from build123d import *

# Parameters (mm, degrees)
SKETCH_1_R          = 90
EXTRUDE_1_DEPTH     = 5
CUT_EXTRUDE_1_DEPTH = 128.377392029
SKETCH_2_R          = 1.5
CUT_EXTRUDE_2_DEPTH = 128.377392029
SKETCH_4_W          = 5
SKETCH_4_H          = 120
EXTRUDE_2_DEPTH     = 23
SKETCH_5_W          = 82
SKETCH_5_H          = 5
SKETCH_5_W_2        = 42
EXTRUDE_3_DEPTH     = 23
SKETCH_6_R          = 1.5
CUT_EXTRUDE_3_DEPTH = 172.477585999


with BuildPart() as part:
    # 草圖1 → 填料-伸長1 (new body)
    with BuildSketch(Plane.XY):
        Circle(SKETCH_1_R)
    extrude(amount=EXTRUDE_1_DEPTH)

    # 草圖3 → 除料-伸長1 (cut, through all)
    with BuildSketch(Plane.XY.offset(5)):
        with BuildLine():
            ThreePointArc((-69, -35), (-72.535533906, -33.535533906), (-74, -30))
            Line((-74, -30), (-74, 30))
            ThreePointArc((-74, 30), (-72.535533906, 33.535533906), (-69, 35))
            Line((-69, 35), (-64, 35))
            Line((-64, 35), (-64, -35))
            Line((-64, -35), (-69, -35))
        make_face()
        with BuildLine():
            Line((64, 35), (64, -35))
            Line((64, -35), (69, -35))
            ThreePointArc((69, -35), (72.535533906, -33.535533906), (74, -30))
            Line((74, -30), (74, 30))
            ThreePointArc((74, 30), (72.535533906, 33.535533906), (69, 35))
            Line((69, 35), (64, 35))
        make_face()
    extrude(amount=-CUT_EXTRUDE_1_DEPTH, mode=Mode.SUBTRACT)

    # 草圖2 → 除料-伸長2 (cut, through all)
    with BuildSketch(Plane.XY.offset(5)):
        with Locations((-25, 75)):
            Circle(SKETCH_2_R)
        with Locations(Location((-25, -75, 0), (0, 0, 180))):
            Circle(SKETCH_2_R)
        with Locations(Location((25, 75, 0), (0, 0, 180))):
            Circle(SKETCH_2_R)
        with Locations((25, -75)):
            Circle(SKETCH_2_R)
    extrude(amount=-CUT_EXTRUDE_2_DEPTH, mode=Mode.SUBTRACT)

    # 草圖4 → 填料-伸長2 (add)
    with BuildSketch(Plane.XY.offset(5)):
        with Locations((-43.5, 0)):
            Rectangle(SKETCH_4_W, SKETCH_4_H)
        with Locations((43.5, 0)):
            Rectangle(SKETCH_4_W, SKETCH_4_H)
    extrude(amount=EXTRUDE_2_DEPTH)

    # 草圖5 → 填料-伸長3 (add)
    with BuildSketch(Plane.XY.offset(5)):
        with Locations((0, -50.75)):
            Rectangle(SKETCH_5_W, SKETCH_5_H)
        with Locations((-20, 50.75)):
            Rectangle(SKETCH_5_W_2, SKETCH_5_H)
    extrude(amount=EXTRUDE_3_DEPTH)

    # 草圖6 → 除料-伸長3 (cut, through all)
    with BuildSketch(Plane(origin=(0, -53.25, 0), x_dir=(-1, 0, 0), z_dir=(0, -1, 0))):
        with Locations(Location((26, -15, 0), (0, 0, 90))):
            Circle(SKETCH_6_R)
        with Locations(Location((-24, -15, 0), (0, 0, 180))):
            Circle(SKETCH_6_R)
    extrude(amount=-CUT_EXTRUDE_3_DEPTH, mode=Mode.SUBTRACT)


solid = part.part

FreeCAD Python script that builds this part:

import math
import FreeCAD as App
import Part
import Sketcher

doc = App.newDocument("Part")
body = doc.addObject("PartDesign::Body", "Body")

sketch1 = doc.addObject("Sketcher::SketchObject", "Sketch")
body.addObject(sketch1)
sketch1.AttachmentSupport = (doc.XY_Plane, [""])
sketch1.MapMode = "FlatFace"
sketch1.addGeometry(Part.Circle(App.Vector(0, 0, 0), App.Vector(0, 0, 1), 90), False)
sketch1.addConstraint(Sketcher.Constraint("Coincident", 0, 3, -1, 1))
sketch1.addConstraint(Sketcher.Constraint("Diameter", 0, 180.0))
pad1 = doc.addObject("PartDesign::Pad", "Pad")
body.addObject(pad1)
pad1.Profile = sketch1
pad1.Length = 5

sketch2 = doc.addObject("Sketcher::SketchObject", "Sketch001")
body.addObject(sketch2)
sketch2.AttachmentSupport = (doc.XY_Plane, [""])
sketch2.MapMode = "FlatFace"
sketch2.AttachmentOffset = App.Placement(App.Vector(0, 0, 5), App.Rotation())
sketch2.addGeometry(Part.ArcOfCircle(Part.Circle(App.Vector(-69, -30, 0), App.Vector(0, 0, 1), 5), math.radians(180), math.radians(270)), False)
sketch2.addGeometry(Part.LineSegment(App.Vector(-69, -35, 0), App.Vector(-64, -35, 0)), False)
sketch2.addGeometry(Part.LineSegment(App.Vector(-64, -35, 0), App.Vector(-64, 35, 0)), False)
sketch2.addGeometry(Part.LineSegment(App.Vector(-64, 35, 0), App.Vector(-69, 35, 0)), False)
sketch2.addGeometry(Part.ArcOfCircle(Part.Circle(App.Vector(-69, 30, 0), App.Vector(0, 0, 1), 5), math.radians(90), math.radians(180)), False)
sketch2.addGeometry(Part.LineSegment(App.Vector(-74, 30, 0), App.Vector(-74, -30, 0)), False)
sketch2.addGeometry(Part.LineSegment(App.Vector(64, 35, 0), App.Vector(64, -35, 0)), False)
sketch2.addGeometry(Part.LineSegment(App.Vector(64, -35, 0), App.Vector(69, -35, 0)), False)
sketch2.addGeometry(Part.ArcOfCircle(Part.Circle(App.Vector(69, -30, 0), App.Vector(0, 0, 1), 5), math.radians(-90), math.radians(0)), False)
sketch2.addGeometry(Part.LineSegment(App.Vector(74, -30, 0), App.Vector(74, 30, 0)), False)
sketch2.addGeometry(Part.ArcOfCircle(Part.Circle(App.Vector(69, 30, 0), App.Vector(0, 0, 1), 5), math.radians(0), math.radians(90)), False)
sketch2.addGeometry(Part.LineSegment(App.Vector(69, 35, 0), App.Vector(64, 35, 0)), False)
sketch2.addConstraint(Sketcher.Constraint("Tangent", 0, 2, 1, 1))
sketch2.addConstraint(Sketcher.Constraint("Coincident", 1, 2, 2, 1))
sketch2.addConstraint(Sketcher.Constraint("Coincident", 2, 2, 3, 1))
sketch2.addConstraint(Sketcher.Constraint("Tangent", 3, 2, 4, 1))
sketch2.addConstraint(Sketcher.Constraint("Tangent", 4, 2, 5, 1))
sketch2.addConstraint(Sketcher.Constraint("Tangent", 5, 2, 0, 1))
sketch2.addConstraint(Sketcher.Constraint("Coincident", 6, 2, 7, 1))
sketch2.addConstraint(Sketcher.Constraint("Tangent", 7, 2, 8, 1))
sketch2.addConstraint(Sketcher.Constraint("Tangent", 8, 2, 9, 1))
sketch2.addConstraint(Sketcher.Constraint("Tangent", 9, 2, 10, 1))
sketch2.addConstraint(Sketcher.Constraint("Tangent", 10, 2, 11, 1))
sketch2.addConstraint(Sketcher.Constraint("Coincident", 11, 2, 6, 1))
sketch2.addConstraint(Sketcher.Constraint("Horizontal", 1))
sketch2.addConstraint(Sketcher.Constraint("Vertical", 2))
sketch2.addConstraint(Sketcher.Constraint("Horizontal", 3))
sketch2.addConstraint(Sketcher.Constraint("Vertical", 5))
sketch2.addConstraint(Sketcher.Constraint("Vertical", 6))
sketch2.addConstraint(Sketcher.Constraint("Horizontal", 7))
sketch2.addConstraint(Sketcher.Constraint("Vertical", 9))
sketch2.addConstraint(Sketcher.Constraint("Horizontal", 11))
sketch2.addConstraint(Sketcher.Constraint("Equal", 0, 4))
sketch2.addConstraint(Sketcher.Constraint("Equal", 4, 8))
sketch2.addConstraint(Sketcher.Constraint("Equal", 8, 10))
sketch2.addConstraint(Sketcher.Constraint("Symmetric", 4, 3, 8, 3, -1, 1))
sketch2.addConstraint(Sketcher.Constraint("Symmetric", 1, 2, 11, 2, -1, 1))
sketch2.addConstraint(Sketcher.Constraint("Horizontal", 0, 3, 8, 3))
sketch2.addConstraint(Sketcher.Constraint("Radius", 0, 5.0))
sketch2.addConstraint(Sketcher.Constraint("DistanceX", 1, 1, 1, 2, 5.0))
sketch2.addConstraint(Sketcher.Constraint("DistanceY", 2, 1, 2, 2, 70.0))
sketch2.addConstraint(Sketcher.Constraint("DistanceX", 0, 3, -1, 1, 69.0))
pocket1 = doc.addObject("PartDesign::Pocket", "Pocket")
body.addObject(pocket1)
pocket1.Profile = sketch2
pocket1.Type = "ThroughAll"

sketch3 = doc.addObject("Sketcher::SketchObject", "Sketch002")
body.addObject(sketch3)
sketch3.AttachmentSupport = (doc.XY_Plane, [""])
sketch3.MapMode = "FlatFace"
sketch3.AttachmentOffset = App.Placement(App.Vector(0, 0, 5), App.Rotation())
sketch3.addGeometry(Part.Circle(App.Vector(-25, 75, 0), App.Vector(0, 0, 1), 1.5), False)
sketch3.addGeometry(Part.Circle(App.Vector(-25, -75, 0), App.Vector(0, 0, 1), 1.5), False)
sketch3.addGeometry(Part.Circle(App.Vector(25, 75, 0), App.Vector(0, 0, 1), 1.5), False)
sketch3.addGeometry(Part.Circle(App.Vector(25, -75, 0), App.Vector(0, 0, 1), 1.5), False)
sketch3.addConstraint(Sketcher.Constraint("Equal", 0, 1))
sketch3.addConstraint(Sketcher.Constraint("Equal", 1, 2))
sketch3.addConstraint(Sketcher.Constraint("Equal", 2, 3))
sketch3.addConstraint(Sketcher.Constraint("Symmetric", 1, 3, 2, 3, -1, 1))
sketch3.addConstraint(Sketcher.Constraint("Symmetric", 0, 3, 3, 3, -1, 1))
sketch3.addConstraint(Sketcher.Constraint("Symmetric", 0, 3, 2, 3, -2))
sketch3.addConstraint(Sketcher.Constraint("Diameter", 0, 3.0))
sketch3.addConstraint(Sketcher.Constraint("DistanceX", 0, 3, -1, 1, 25.0))
sketch3.addConstraint(Sketcher.Constraint("DistanceY", -1, 1, 0, 3, 75.0))
pocket2 = doc.addObject("PartDesign::Pocket", "Pocket001")
body.addObject(pocket2)
pocket2.Profile = sketch3
pocket2.Type = "ThroughAll"

sketch4 = doc.addObject("Sketcher::SketchObject", "Sketch003")
body.addObject(sketch4)
sketch4.AttachmentSupport = (doc.XY_Plane, [""])
sketch4.MapMode = "FlatFace"
sketch4.AttachmentOffset = App.Placement(App.Vector(0, 0, 5), App.Rotation())
sketch4.addGeometry(Part.LineSegment(App.Vector(-46, 60, 0), App.Vector(-46, -60, 0)), False)
sketch4.addGeometry(Part.LineSegment(App.Vector(-46, -60, 0), App.Vector(-41, -60, 0)), False)
sketch4.addGeometry(Part.LineSegment(App.Vector(-41, -60, 0), App.Vector(-41, 60, 0)), False)
sketch4.addGeometry(Part.LineSegment(App.Vector(-41, 60, 0), App.Vector(-46, 60, 0)), False)
sketch4.addGeometry(Part.LineSegment(App.Vector(41, 60, 0), App.Vector(41, -60, 0)), False)
sketch4.addGeometry(Part.LineSegment(App.Vector(41, -60, 0), App.Vector(46, -60, 0)), False)
sketch4.addGeometry(Part.LineSegment(App.Vector(46, -60, 0), App.Vector(46, 60, 0)), False)
sketch4.addGeometry(Part.LineSegment(App.Vector(46, 60, 0), App.Vector(41, 60, 0)), False)
sketch4.addConstraint(Sketcher.Constraint("Coincident", 0, 2, 1, 1))
sketch4.addConstraint(Sketcher.Constraint("Coincident", 1, 2, 2, 1))
sketch4.addConstraint(Sketcher.Constraint("Coincident", 2, 2, 3, 1))
sketch4.addConstraint(Sketcher.Constraint("Coincident", 3, 2, 0, 1))
sketch4.addConstraint(Sketcher.Constraint("Coincident", 4, 2, 5, 1))
sketch4.addConstraint(Sketcher.Constraint("Coincident", 5, 2, 6, 1))
sketch4.addConstraint(Sketcher.Constraint("Coincident", 6, 2, 7, 1))
sketch4.addConstraint(Sketcher.Constraint("Coincident", 7, 2, 4, 1))
sketch4.addConstraint(Sketcher.Constraint("Vertical", 0))
sketch4.addConstraint(Sketcher.Constraint("Horizontal", 1))
sketch4.addConstraint(Sketcher.Constraint("Vertical", 2))
sketch4.addConstraint(Sketcher.Constraint("Horizontal", 3))
sketch4.addConstraint(Sketcher.Constraint("Vertical", 4))
sketch4.addConstraint(Sketcher.Constraint("Horizontal", 5))
sketch4.addConstraint(Sketcher.Constraint("Vertical", 6))
sketch4.addConstraint(Sketcher.Constraint("Horizontal", 7))
sketch4.addConstraint(Sketcher.Constraint("Symmetric", 2, 2, 4, 2, -1, 1))
sketch4.addConstraint(Sketcher.Constraint("Symmetric", 0, 2, 6, 2, -1, 1))
sketch4.addConstraint(Sketcher.Constraint("Horizontal", 1, 2, 4, 2))
sketch4.addConstraint(Sketcher.Constraint("DistanceX", 1, 1, 1, 2, 5.0))
sketch4.addConstraint(Sketcher.Constraint("DistanceY", 0, 2, 0, 1, 120.0))
sketch4.addConstraint(Sketcher.Constraint("DistanceX", 0, 2, -1, 1, 46.0))
pad2 = doc.addObject("PartDesign::Pad", "Pad001")
body.addObject(pad2)
pad2.Profile = sketch4
pad2.Length = 23

sketch5 = doc.addObject("Sketcher::SketchObject", "Sketch004")
body.addObject(sketch5)
sketch5.AttachmentSupport = (doc.XY_Plane, [""])
sketch5.MapMode = "FlatFace"
sketch5.AttachmentOffset = App.Placement(App.Vector(0, 0, 5), App.Rotation())
sketch5.addGeometry(Part.LineSegment(App.Vector(-41, -48, 0), App.Vector(-41, -53, 0)), False)
sketch5.addGeometry(Part.LineSegment(App.Vector(-41, -53, 0), App.Vector(41, -53, 0)), False)
sketch5.addGeometry(Part.LineSegment(App.Vector(41, -53, 0), App.Vector(41, -48, 0)), False)
sketch5.addGeometry(Part.LineSegment(App.Vector(41, -48, 0), App.Vector(-41, -48, 0)), False)
sketch5.addGeometry(Part.LineSegment(App.Vector(-41, 53, 0), App.Vector(-41, 48, 0)), False)
sketch5.addGeometry(Part.LineSegment(App.Vector(-41, 48, 0), App.Vector(1, 48, 0)), False)
sketch5.addGeometry(Part.LineSegment(App.Vector(1, 48, 0), App.Vector(1, 53, 0)), False)
sketch5.addGeometry(Part.LineSegment(App.Vector(1, 53, 0), App.Vector(-41, 53, 0)), False)
sketch5.addConstraint(Sketcher.Constraint("Coincident", 0, 2, 1, 1))
sketch5.addConstraint(Sketcher.Constraint("Coincident", 1, 2, 2, 1))
sketch5.addConstraint(Sketcher.Constraint("Coincident", 2, 2, 3, 1))
sketch5.addConstraint(Sketcher.Constraint("Coincident", 3, 2, 0, 1))
sketch5.addConstraint(Sketcher.Constraint("Coincident", 4, 2, 5, 1))
sketch5.addConstraint(Sketcher.Constraint("Coincident", 5, 2, 6, 1))
sketch5.addConstraint(Sketcher.Constraint("Coincident", 6, 2, 7, 1))
sketch5.addConstraint(Sketcher.Constraint("Coincident", 7, 2, 4, 1))
sketch5.addConstraint(Sketcher.Constraint("Vertical", 0))
sketch5.addConstraint(Sketcher.Constraint("Horizontal", 1))
sketch5.addConstraint(Sketcher.Constraint("Vertical", 2))
sketch5.addConstraint(Sketcher.Constraint("Horizontal", 3))
sketch5.addConstraint(Sketcher.Constraint("Vertical", 4))
sketch5.addConstraint(Sketcher.Constraint("Horizontal", 5))
sketch5.addConstraint(Sketcher.Constraint("Vertical", 6))
sketch5.addConstraint(Sketcher.Constraint("Horizontal", 7))
sketch5.addConstraint(Sketcher.Constraint("Symmetric", 2, 2, 4, 2, -1, 1))
sketch5.addConstraint(Sketcher.Constraint("Symmetric", 0, 2, 7, 2, -1))
sketch5.addConstraint(Sketcher.Constraint("DistanceX", 1, 1, 1, 2, 82.0))
sketch5.addConstraint(Sketcher.Constraint("DistanceX", 5, 1, 5, 2, 42.0))
sketch5.addConstraint(Sketcher.Constraint("DistanceY", 0, 2, 0, 1, 5.0))
sketch5.addConstraint(Sketcher.Constraint("DistanceY", 3, 2, 4, 2, 96.5))
pad3 = doc.addObject("PartDesign::Pad", "Pad002")
body.addObject(pad3)
pad3.Profile = sketch5
pad3.Length = 23

sketch6 = doc.addObject("Sketcher::SketchObject", "Sketch005")
body.addObject(sketch6)
sketch6.AttachmentSupport = (doc.XZ_Plane, [""])
sketch6.MapMode = "FlatFace"
sketch6.AttachmentOffset = App.Placement(App.Vector(0, 0, 53.25), App.Rotation())
sketch6.addGeometry(Part.Circle(App.Vector(-26, 15, 0), App.Vector(0, 0, 1), 1.5), False)
sketch6.addGeometry(Part.Circle(App.Vector(24, 15, 0), App.Vector(0, 0, 1), 1.5), False)
sketch6.addConstraint(Sketcher.Constraint("Equal", 0, 1))
sketch6.addConstraint(Sketcher.Constraint("Horizontal", 0, 3, 1, 3))
sketch6.addConstraint(Sketcher.Constraint("Diameter", 0, 3.0))
sketch6.addConstraint(Sketcher.Constraint("DistanceX", 0, 3, -1, 1, 26.0))
sketch6.addConstraint(Sketcher.Constraint("DistanceY", -1, 1, 0, 3, 15.0))
sketch6.addConstraint(Sketcher.Constraint("DistanceX", -1, 1, 1, 3, 24.0))
pocket3 = doc.addObject("PartDesign::Pocket", "Pocket002")
body.addObject(pocket3)
pocket3.Profile = sketch6
pocket3.Type = "ThroughAll"

doc.recompute()
